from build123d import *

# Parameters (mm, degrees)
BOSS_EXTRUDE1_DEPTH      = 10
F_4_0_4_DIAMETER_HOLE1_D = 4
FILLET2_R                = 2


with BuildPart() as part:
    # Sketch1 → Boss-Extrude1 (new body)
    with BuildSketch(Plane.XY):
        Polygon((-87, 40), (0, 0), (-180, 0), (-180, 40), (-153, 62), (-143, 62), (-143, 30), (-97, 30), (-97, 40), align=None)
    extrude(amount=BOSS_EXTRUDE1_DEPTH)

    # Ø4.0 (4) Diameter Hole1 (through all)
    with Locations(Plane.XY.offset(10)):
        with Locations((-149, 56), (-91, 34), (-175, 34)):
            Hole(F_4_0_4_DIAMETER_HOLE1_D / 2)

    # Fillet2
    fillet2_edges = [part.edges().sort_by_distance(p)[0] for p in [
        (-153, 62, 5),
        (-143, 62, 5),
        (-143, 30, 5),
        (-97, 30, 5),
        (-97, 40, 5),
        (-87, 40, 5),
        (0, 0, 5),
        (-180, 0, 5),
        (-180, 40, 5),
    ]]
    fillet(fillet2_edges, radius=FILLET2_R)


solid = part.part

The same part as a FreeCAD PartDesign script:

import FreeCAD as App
import Part
import Sketcher


def edges_at(feature, points):
    """Names of the edges that pass closest to the given points."""
    edges = feature.Shape.Edges
    near = lambda p: min(range(len(edges)), key=lambda i: edges[i].distToShape(Part.Vertex(*p))[0])
    return sorted({f"Edge{near(p) + 1}" for p in points})


def add_polygon(sketch, points):
    """Adds a closed chain of lines whose ends are joined by coincident constraints."""
    first, n = sketch.GeometryCount, len(points)
    for a, b in zip(points, points[1:] + points[:1]):
        sketch.addGeometry(Part.LineSegment(App.Vector(*a, 0), App.Vector(*b, 0)), False)
    for i in range(n):
        sketch.addConstraint(Sketcher.Constraint("Coincident", first + i, 2, first + (i + 1) % n, 1))

doc = App.newDocument("Part")
body = doc.addObject("PartDesign::Body", "Body")

sketch1 = doc.addObject("Sketcher::SketchObject", "Sketch")
body.addObject(sketch1)
sketch1.AttachmentSupport = (doc.XY_Plane, [""])
sketch1.MapMode = "FlatFace"
add_polygon(sketch1, [(0, 0), (-87, 40), (-97, 40), (-97, 30), (-143, 30), (-143, 62), (-153, 62), (-180, 40), (-180, 0)])
sketch1.addConstraint(Sketcher.Constraint("Horizontal", 1))
sketch1.addConstraint(Sketcher.Constraint("Vertical", 2))
sketch1.addConstraint(Sketcher.Constraint("Horizontal", 3))
sketch1.addConstraint(Sketcher.Constraint("Vertical", 4))
sketch1.addConstraint(Sketcher.Constraint("Horizontal", 5))
sketch1.addConstraint(Sketcher.Constraint("Vertical", 7))
sketch1.addConstraint(Sketcher.Constraint("Horizontal", 8))
sketch1.addConstraint(Sketcher.Constraint("Coincident", 8, 2, -1, 1))
sketch1.addConstraint(Sketcher.Constraint("Horizontal", 1, 2, 6, 2))
sketch1.addConstraint(Sketcher.Constraint("Equal", 1, 5))
sketch1.addConstraint(Sketcher.Constraint("Equal", 5, 2))
sketch1.addConstraint(Sketcher.Constraint("DistanceX", 1, 2, 1, 1, 10.0))
sketch1.addConstraint(Sketcher.Constraint("DistanceX", 3, 2, 3, 1, 46.0))
sketch1.addConstraint(Sketcher.Constraint("DistanceX", 8, 1, 8, 2, 180.0))
sketch1.addConstraint(Sketcher.Constraint("DistanceY", 4, 1, 4, 2, 32.0))
sketch1.addConstraint(Sketcher.Constraint("DistanceY", 7, 2, 7, 1, 40.0))
sketch1.addConstraint(Sketcher.Constraint("DistanceX", 0, 2, -1, 1, 87.0))
pad1 = doc.addObject("PartDesign::Pad", "Pad")
body.addObject(pad1)
pad1.Profile = sketch1
pad1.Length = 10

sketch2 = doc.addObject("Sketcher::SketchObject", "Sketch001")
body.addObject(sketch2)
sketch2.AttachmentSupport = (doc.XY_Plane, [""])
sketch2.MapMode = "FlatFace"
sketch2.AttachmentOffset = App.Placement(App.Vector(0, 0, 10), App.Rotation())
sketch2.addGeometry(Part.Circle(App.Vector(-149, 56, 0), App.Vector(0, 0, 1), 2), False)
sketch2.addGeometry(Part.Circle(App.Vector(-91, 34, 0), App.Vector(0, 0, 1), 2), False)
sketch2.addGeometry(Part.Circle(App.Vector(-175, 34, 0), App.Vector(0, 0, 1), 2), False)
sketch2.addConstraint(Sketcher.Constraint("Equal", 0, 1))
sketch2.addConstraint(Sketcher.Constraint("Equal", 1, 2))
sketch2.addConstraint(Sketcher.Constraint("Horizontal", 1, 3, 2, 3))
sketch2.addConstraint(Sketcher.Constraint("Diameter", 0, 4.0))
sketch2.addConstraint(Sketcher.Constraint("DistanceX", 0, 3, -1, 1, 149.0))
sketch2.addConstraint(Sketcher.Constraint("DistanceY", -1, 1, 0, 3, 56.0))
sketch2.addConstraint(Sketcher.Constraint("DistanceX", 1, 3, -1, 1, 91.0))
sketch2.addConstraint(Sketcher.Constraint("DistanceY", -1, 1, 1, 3, 34.0))
sketch2.addConstraint(Sketcher.Constraint("DistanceX", 2, 3, -1, 1, 175.0))
doc.recompute()
hole = doc.addObject("PartDesign::Hole", "Hole")
body.addObject(hole)
hole.Profile = sketch2
hole.ThreadType = "None"
hole.Diameter = 4
hole.DepthType = "ThroughAll"
doc.recompute()

fillet = doc.addObject("PartDesign::Fillet", "Fillet")
body.addObject(fillet)
fillet.Base = (hole, edges_at(hole, [
    (-153, 62, 5),
    (-143, 62, 5),
    (-143, 30, 5),
    (-97, 30, 5),
    (-97, 40, 5),
    (-87, 40, 5),
    (0, 0, 5),
    (-180, 0, 5),
    (-180, 40, 5),
]))
fillet.Radius = 2

doc.recompute()
